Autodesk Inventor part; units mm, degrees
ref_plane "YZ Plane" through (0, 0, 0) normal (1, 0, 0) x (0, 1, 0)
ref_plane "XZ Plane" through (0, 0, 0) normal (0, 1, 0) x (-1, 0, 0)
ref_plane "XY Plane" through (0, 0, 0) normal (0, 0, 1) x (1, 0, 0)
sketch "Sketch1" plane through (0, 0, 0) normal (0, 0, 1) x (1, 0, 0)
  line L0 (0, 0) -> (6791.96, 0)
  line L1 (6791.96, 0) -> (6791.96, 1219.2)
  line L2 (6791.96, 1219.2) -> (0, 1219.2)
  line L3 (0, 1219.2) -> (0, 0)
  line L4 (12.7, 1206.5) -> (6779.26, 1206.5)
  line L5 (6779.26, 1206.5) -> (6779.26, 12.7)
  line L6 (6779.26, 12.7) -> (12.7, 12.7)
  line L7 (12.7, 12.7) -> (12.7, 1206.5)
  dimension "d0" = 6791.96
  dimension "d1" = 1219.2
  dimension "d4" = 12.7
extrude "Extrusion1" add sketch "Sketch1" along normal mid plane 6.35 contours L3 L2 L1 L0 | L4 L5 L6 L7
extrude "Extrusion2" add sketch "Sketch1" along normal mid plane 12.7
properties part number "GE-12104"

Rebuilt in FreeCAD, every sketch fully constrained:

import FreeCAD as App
import Part
import Sketcher
Q = App.Units.Quantity

doc = App.newDocument("Part")
body = doc.addObject("PartDesign::Body", "Body")

sketch1 = doc.addObject("Sketcher::SketchObject", "Sketch")
body.addObject(sketch1)
sketch1.AttachmentSupport = (doc.XY_Plane, [""])
sketch1.MapMode = "FlatFace"
sketch1.addGeometry(Part.LineSegment(App.Vector(0, 1219, 0), App.Vector(0, 0, 0)), False)
sketch1.addGeometry(Part.LineSegment(App.Vector(0, 0, 0), App.Vector(6792, 0, 0)), False)
sketch1.addGeometry(Part.LineSegment(App.Vector(6792, 0, 0), App.Vector(6792, 1219, 0)), False)
sketch1.addGeometry(Part.LineSegment(App.Vector(6792, 1219, 0), App.Vector(0, 1219, 0)), False)
sketch1.addConstraint(Sketcher.Constraint("Coincident", 0, 2, 1, 1))
sketch1.addConstraint(Sketcher.Constraint("Coincident", 1, 2, 2, 1))
sketch1.addConstraint(Sketcher.Constraint("Coincident", 2, 2, 3, 1))
sketch1.addConstraint(Sketcher.Constraint("Coincident", 3, 2, 0, 1))
sketch1.addConstraint(Sketcher.Constraint("Vertical", 0))
sketch1.addConstraint(Sketcher.Constraint("Horizontal", 1))
sketch1.addConstraint(Sketcher.Constraint("Vertical", 2))
sketch1.addConstraint(Sketcher.Constraint("Horizontal", 3))
sketch1.addConstraint(Sketcher.Constraint("Coincident", 0, 2, -1, 1))
sketch1.addConstraint(Sketcher.Constraint("DistanceY", 0, 2, 0, 1, Q("48 in")))
sketch1.addConstraint(Sketcher.Constraint("DistanceX", 1, 1, 1, 2, Q("267.4 in")))
pad1 = doc.addObject("PartDesign::Pad", "Pad")
body.addObject(pad1)
pad1.Profile = sketch1
pad1.Length = Q("0.25 in")
pad1.Midplane = True

sketch2 = doc.addObject("Sketcher::SketchObject", "Sketch001")
body.addObject(sketch2)
sketch2.AttachmentSupport = (doc.XY_Plane, [""])
sketch2.MapMode = "FlatFace"
sketch2.addGeometry(Part.LineSegment(App.Vector(0, 1219, 0), App.Vector(0, 0, 0)), False)
sketch2.addGeometry(Part.LineSegment(App.Vector(0, 0, 0), App.Vector(6792, 0, 0)), False)
sketch2.addGeometry(Part.LineSegment(App.Vector(6792, 0, 0), App.Vector(6792, 1219, 0)), False)
sketch2.addGeometry(Part.LineSegment(App.Vector(6792, 1219, 0), App.Vector(0, 1219, 0)), False)
sketch2.addGeometry(Part.LineSegment(App.Vector(13, 13, 0), App.Vector(13, 1206, 0)), False)
sketch2.addGeometry(Part.LineSegment(App.Vector(13, 1206, 0), App.Vector(6779, 1206, 0)), False)
sketch2.addGeometry(Part.LineSegment(App.Vector(6779, 1206, 0), App.Vector(6779, 13, 0)), False)
sketch2.addGeometry(Part.LineSegment(App.Vector(6779, 13, 0), App.Vector(13, 13, 0)), False)
sketch2.addConstraint(Sketcher.Constraint("Coincident", 0, 2, 1, 1))
sketch2.addConstraint(Sketcher.Constraint("Coincident", 1, 2, 2, 1))
sketch2.addConstraint(Sketcher.Constraint("Coincident", 2, 2, 3, 1))
sketch2.addConstraint(Sketcher.Constraint("Coincident", 3, 2, 0, 1))
sketch2.addConstraint(Sketcher.Constraint("Coincident", 4, 2, 5, 1))
sketch2.addConstraint(Sketcher.Constraint("Coincident", 5, 2, 6, 1))
sketch2.addConstraint(Sketcher.Constraint("Coincident", 6, 2, 7, 1))
sketch2.addConstraint(Sketcher.Constraint("Coincident", 7, 2, 4, 1))
sketch2.addConstraint(Sketcher.Constraint("Vertical", 0))
sketch2.addConstraint(Sketcher.Constraint("Horizontal", 1))
sketch2.addConstraint(Sketcher.Constraint("Vertical", 2))
sketch2.addConstraint(Sketcher.Constraint("Horizontal", 3))
sketch2.addConstraint(Sketcher.Constraint("Vertical", 4))
sketch2.addConstraint(Sketcher.Constraint("Horizontal", 5))
sketch2.addConstraint(Sketcher.Constraint("Vertical", 6))
sketch2.addConstraint(Sketcher.Constraint("Horizontal", 7))
sketch2.addConstraint(Sketcher.Constraint("Coincident", 0, 2, -1, 1))
sketch2.addConstraint(Sketcher.Constraint("DistanceY", 0, 2, 0, 1, Q("48 in")))
sketch2.addConstraint(Sketcher.Constraint("DistanceX", 1, 1, 1, 2, Q("267.4 in")))
sketch2.addConstraint(Sketcher.Constraint("DistanceX", -1, 1, 4, 2, Q("0.5 in")))
sketch2.addConstraint(Sketcher.Constraint("DistanceY", -1, 1, 6, 2, Q("0.5 in")))
sketch2.addConstraint(Sketcher.Constraint("DistanceY", 4, 2, 3, 2, Q("0.5 in")))
sketch2.addConstraint(Sketcher.Constraint("DistanceX", 5, 2, 2, 2, Q("0.5 in")))
pad2 = doc.addObject("PartDesign::Pad", "Pad001")
body.addObject(pad2)
pad2.Profile = sketch2
pad2.Length = Q("0.5 in")
pad2.Midplane = True

doc.recompute()
